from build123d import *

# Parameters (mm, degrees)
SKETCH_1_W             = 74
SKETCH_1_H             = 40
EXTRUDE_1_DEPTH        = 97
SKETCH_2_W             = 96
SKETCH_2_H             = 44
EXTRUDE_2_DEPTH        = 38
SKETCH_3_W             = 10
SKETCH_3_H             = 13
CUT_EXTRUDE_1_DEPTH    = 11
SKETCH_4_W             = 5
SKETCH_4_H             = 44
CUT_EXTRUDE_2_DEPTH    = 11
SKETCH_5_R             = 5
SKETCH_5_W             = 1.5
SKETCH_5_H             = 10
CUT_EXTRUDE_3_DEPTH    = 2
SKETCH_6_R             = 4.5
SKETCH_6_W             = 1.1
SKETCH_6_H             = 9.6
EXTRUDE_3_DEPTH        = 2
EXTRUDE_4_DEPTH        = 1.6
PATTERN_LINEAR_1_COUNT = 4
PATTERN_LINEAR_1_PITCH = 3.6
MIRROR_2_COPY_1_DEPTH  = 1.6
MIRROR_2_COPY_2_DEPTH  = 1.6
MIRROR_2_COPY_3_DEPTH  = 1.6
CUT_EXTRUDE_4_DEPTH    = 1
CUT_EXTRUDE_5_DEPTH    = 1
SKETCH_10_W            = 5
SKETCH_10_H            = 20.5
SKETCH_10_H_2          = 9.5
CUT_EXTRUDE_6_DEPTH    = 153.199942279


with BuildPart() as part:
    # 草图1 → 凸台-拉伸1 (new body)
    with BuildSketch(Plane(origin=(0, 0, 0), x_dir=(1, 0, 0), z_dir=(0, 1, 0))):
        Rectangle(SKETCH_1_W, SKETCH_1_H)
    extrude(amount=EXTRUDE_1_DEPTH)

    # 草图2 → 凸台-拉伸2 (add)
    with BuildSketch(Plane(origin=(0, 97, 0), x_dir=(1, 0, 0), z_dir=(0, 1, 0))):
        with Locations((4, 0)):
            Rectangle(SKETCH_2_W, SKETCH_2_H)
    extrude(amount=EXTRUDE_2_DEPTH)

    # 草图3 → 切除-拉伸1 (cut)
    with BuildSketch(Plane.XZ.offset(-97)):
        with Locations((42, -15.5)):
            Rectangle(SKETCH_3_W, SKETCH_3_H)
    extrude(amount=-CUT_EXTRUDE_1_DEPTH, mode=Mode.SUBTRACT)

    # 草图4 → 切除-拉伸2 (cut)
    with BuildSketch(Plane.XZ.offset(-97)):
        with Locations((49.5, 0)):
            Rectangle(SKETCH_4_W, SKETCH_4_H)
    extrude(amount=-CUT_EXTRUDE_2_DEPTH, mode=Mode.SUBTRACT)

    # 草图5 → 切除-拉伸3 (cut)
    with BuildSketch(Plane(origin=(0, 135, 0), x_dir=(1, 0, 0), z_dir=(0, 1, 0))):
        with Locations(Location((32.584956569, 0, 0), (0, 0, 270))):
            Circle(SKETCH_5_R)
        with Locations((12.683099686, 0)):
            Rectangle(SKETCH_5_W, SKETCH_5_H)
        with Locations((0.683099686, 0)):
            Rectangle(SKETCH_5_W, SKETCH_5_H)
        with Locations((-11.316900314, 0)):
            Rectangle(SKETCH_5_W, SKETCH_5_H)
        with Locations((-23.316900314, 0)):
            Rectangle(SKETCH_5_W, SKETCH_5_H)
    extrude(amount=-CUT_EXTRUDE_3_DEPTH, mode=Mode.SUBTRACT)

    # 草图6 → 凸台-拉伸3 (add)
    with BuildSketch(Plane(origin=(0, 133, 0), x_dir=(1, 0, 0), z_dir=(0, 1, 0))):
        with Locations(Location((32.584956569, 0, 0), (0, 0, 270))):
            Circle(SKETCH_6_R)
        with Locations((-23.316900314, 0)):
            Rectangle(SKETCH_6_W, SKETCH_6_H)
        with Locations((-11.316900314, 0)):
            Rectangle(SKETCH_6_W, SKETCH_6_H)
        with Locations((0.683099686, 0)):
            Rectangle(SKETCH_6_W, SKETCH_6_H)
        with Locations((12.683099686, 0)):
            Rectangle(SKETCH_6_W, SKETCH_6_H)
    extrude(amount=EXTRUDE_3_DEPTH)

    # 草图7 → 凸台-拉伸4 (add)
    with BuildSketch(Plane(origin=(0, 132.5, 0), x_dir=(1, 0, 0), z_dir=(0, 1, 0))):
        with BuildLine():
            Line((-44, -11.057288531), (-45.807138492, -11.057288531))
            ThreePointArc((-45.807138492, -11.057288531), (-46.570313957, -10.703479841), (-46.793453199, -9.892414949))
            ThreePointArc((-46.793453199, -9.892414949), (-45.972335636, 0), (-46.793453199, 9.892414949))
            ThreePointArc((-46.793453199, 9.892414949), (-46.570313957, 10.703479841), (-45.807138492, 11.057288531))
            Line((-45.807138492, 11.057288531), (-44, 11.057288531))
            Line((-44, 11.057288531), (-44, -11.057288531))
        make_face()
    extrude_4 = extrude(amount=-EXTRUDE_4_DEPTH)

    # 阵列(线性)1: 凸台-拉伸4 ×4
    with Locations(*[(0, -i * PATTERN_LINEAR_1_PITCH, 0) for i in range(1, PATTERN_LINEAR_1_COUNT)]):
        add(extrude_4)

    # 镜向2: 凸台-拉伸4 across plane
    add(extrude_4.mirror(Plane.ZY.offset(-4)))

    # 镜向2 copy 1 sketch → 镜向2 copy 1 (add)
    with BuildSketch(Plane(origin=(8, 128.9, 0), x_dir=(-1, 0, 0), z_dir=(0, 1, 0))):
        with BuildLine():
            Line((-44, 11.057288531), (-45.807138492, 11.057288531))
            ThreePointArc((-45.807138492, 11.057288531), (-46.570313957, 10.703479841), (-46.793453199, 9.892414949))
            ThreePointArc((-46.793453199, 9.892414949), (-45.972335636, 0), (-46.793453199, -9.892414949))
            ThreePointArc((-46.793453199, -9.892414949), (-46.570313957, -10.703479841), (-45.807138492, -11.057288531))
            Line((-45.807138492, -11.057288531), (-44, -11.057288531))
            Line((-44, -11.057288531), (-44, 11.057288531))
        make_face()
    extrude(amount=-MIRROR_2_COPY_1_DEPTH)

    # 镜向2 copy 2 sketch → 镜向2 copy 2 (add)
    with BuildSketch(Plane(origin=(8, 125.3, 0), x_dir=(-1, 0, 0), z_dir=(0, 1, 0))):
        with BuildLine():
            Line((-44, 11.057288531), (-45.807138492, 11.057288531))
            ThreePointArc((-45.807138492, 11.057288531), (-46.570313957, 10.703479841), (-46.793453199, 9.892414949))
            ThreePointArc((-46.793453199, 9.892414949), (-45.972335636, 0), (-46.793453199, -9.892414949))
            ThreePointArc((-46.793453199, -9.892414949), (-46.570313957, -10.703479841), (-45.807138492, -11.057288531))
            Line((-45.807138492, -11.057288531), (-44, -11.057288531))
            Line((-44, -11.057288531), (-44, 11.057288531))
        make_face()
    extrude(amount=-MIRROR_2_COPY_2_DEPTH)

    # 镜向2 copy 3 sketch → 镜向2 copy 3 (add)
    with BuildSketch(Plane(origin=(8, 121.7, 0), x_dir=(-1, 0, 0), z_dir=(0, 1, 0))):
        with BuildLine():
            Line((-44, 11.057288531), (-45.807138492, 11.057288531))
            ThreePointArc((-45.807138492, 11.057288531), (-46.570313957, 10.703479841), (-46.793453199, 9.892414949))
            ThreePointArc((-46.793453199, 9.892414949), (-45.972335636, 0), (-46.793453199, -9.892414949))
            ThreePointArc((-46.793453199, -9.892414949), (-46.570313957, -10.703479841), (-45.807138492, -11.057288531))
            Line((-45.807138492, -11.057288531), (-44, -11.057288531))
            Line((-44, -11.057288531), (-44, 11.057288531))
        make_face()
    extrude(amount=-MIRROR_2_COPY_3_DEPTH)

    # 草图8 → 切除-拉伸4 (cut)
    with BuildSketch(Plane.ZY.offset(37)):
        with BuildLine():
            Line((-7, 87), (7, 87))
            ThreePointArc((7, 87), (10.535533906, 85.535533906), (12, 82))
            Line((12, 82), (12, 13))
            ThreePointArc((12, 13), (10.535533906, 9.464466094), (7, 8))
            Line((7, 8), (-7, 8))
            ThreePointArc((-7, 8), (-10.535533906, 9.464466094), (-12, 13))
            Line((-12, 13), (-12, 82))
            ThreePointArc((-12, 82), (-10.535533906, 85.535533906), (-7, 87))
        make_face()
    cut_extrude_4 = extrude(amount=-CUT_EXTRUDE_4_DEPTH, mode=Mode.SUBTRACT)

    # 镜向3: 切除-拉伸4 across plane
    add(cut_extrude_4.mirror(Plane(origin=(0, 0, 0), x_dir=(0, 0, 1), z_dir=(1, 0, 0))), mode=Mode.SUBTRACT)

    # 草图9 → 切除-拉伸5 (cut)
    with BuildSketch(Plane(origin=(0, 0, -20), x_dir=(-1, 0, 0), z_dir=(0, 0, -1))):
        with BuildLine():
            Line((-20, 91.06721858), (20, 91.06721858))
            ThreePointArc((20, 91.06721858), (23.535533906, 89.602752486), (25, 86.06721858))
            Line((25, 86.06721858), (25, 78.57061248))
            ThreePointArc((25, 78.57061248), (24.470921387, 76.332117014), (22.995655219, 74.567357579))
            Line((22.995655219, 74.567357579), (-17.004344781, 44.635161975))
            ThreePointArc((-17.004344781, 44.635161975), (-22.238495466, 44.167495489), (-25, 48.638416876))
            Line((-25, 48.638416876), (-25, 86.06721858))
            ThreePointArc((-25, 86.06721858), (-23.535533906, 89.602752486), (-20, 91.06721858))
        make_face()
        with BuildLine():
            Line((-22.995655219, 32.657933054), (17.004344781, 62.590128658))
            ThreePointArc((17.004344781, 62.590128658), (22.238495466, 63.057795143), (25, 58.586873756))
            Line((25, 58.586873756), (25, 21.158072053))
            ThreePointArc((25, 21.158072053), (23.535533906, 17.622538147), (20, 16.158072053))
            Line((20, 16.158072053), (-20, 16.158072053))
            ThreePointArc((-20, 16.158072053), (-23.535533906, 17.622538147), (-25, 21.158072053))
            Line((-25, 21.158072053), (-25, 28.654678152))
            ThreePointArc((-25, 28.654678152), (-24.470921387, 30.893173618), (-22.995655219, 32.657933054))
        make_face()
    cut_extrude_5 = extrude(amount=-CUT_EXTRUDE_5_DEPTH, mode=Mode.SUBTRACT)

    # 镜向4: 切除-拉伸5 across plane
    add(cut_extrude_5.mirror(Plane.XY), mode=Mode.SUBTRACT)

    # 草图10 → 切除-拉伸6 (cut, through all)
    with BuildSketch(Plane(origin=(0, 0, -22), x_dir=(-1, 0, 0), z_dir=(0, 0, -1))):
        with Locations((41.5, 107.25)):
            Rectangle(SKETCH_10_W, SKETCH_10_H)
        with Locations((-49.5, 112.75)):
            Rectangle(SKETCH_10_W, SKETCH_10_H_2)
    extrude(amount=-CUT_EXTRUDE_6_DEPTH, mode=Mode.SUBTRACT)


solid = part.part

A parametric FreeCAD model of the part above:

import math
import FreeCAD as App
import Part
import Sketcher

V = App.Vector
Q = App.Units.Quantity


def add_polygon(sketch, points):
    """Adds a closed chain of lines whose ends are joined by coincident constraints."""
    first, n = sketch.GeometryCount, len(points)
    for a, b in zip(points, points[1:] + points[:1]):
        sketch.addGeometry(Part.LineSegment(App.Vector(*a, 0), App.Vector(*b, 0)), False)
    for i in range(n):
        sketch.addConstraint(Sketcher.Constraint("Coincident", first + i, 2, first + (i + 1) % n, 1))

doc = App.newDocument("Part")
params = doc.addObject("Spreadsheet::Sheet", "Params")
for row, (alias, value) in enumerate([
    ("sketch1_width", "74 mm"),
    ("sketch1_height", "40 mm"),
    ("pad1_length", "97 mm"),
    ("sketch2_width", "96 mm"),
    ("sketch2_height", "44 mm"),
    ("pad2_length", "38 mm"),
    ("sketch3_width", "10 mm"),
    ("sketch3_height", "13 mm"),
    ("pocket1_length", "11 mm"),
    ("sketch4_width", "5 mm"),
    ("sketch4_height", "44 mm"),
    ("pocket2_length", "11 mm"),
    ("sketch5_diameter", "10 mm"),
    ("sketch5_height", "10 mm"),
    ("sketch5_width", "1.5 mm"),
    ("pocket3_length", "2 mm"),
    ("sketch6_diameter", "9 mm"),
    ("sketch6_width", "1.1 mm"),
    ("sketch6_height", "9.6 mm"),
    ("pad3_length", "2 mm"),
    ("sketch7_radius", "1 mm"),
    ("sketch7_radius2", "60 mm"),
    ("pad4_length", "1.6 mm"),
    ("linearpattern_pitch", "3.6 mm"),
    ("sketch8_radius", "1 mm"),
    ("sketch8_radius2", "60 mm"),
    ("pad5_length", "1.6 mm"),
    ("sketch9_radius", "1 mm"),
    ("sketch9_radius2", "60 mm"),
    ("pad6_length", "1.6 mm"),
    ("sketch10_radius", "1 mm"),
    ("sketch10_radius2", "60 mm"),
    ("pad7_length", "1.6 mm"),
    ("sketch11_radius", "5 mm"),
    ("sketch11_width", "69 mm"),
    ("sketch11_height", "14 mm"),
    ("pocket4_length", "1 mm"),
    ("sketch12_radius", "5 mm"),
    ("sketch12_width", "40 mm"),
    ("pocket5_length", "1 mm"),
    ("sketch13_width", "5 mm"),
    ("sketch13_height", "20.5 mm"),
    ("sketch13_height2", "9.5 mm"),
], start=1):
    params.set(f"A{row}", alias)
    params.set(f"B{row}", "=" + value)
    params.setAlias(f"B{row}", alias)

body = doc.addObject("PartDesign::Body", "Body")

# Sketch on XZ plane
sketch1 = doc.addObject("Sketcher::SketchObject", "Sketch")
body.addObject(sketch1)
sketch1.AttachmentSupport = (doc.XZ_Plane, [""])
sketch1.MapMode = "FlatFace"
add_polygon(sketch1, [(-37, -20), (-37, 20), (37, 20), (37, -20)])  # lines 0-3
sketch1.addConstraint([
    Sketcher.Constraint("Vertical", 0),
    Sketcher.Constraint("Horizontal", 1),
    Sketcher.Constraint("Vertical", 2),
    Sketcher.Constraint("Horizontal", 3),
    Sketcher.Constraint("Symmetric", 0, 2, 2, 2, -1, 1),
    Sketcher.Constraint("DistanceX", 1, 1, 1, 2, Q("74 mm")),
    Sketcher.Constraint("DistanceY", 0, 1, 0, 2, Q("40 mm")),
])
sketch1.setExpression("Constraints[9]", "Params.sketch1_width")
sketch1.setExpression("Constraints[10]", "Params.sketch1_height")
pad1 = doc.addObject("PartDesign::Pad", "Pad")
body.addObject(pad1)
pad1.Profile = sketch1
pad1.setExpression("Length", "Params.pad1_length")
pad1.Reversed = True

# Sketch on XZ plane
sketch2 = doc.addObject("Sketcher::SketchObject", "Sketch001")
body.addObject(sketch2)
sketch2.AttachmentSupport = (doc.XZ_Plane, [""])
sketch2.MapMode = "FlatFace"
sketch2.AttachmentOffset = App.Placement(V(0, 0, -97), App.Rotation())
add_polygon(sketch2, [(-44, -22), (-44, 22), (52, 22), (52, -22)])  # lines 0-3
sketch2.addConstraint([
    Sketcher.Constraint("Vertical", 0),
    Sketcher.Constraint("Horizontal", 1),
    Sketcher.Constraint("Vertical", 2),
    Sketcher.Constraint("Horizontal", 3),
    Sketcher.Constraint("DistanceX", 1, 1, 1, 2, Q("96 mm")),
    Sketcher.Constraint("DistanceY", 0, 1, 0, 2, Q("44 mm")),
    Sketcher.Constraint("DistanceX", 0, 2, -1, 1, Q("44 mm")),
    Sketcher.Constraint("DistanceY", -1, 1, 0, 2, Q("22 mm")),
])
sketch2.setExpression("Constraints[8]", "Params.sketch2_width")
sketch2.setExpression("Constraints[9]", "Params.sketch2_height")
pad2 = doc.addObject("PartDesign::Pad", "Pad001")
body.addObject(pad2)
pad2.Profile = sketch2
pad2.setExpression("Length", "Params.pad2_length")
pad2.Reversed = True

# Sketch on XZ plane
sketch3 = doc.addObject("Sketcher::SketchObject", "Sketch002")
body.addObject(sketch3)
sketch3.AttachmentSupport = (doc.XZ_Plane, [""])
sketch3.MapMode = "FlatFace"
sketch3.AttachmentOffset = App.Placement(V(0, 0, -97), App.Rotation())
add_polygon(sketch3, [(37, -9), (37, -22), (47, -22), (47, -9)])  # lines 0-3
sketch3.addConstraint([
    Sketcher.Constraint("Vertical", 0),
    Sketcher.Constraint("Horizontal", 1),
    Sketcher.Constraint("Vertical", 2),
    Sketcher.Constraint("Horizontal", 3),
    Sketcher.Constraint("DistanceX", 1, 1, 1, 2, Q("10 mm")),
    Sketcher.Constraint("DistanceY", 0, 2, 0, 1, Q("13 mm")),
    Sketcher.Constraint("DistanceX", -1, 1, 0, 2, Q("37 mm")),
    Sketcher.Constraint("DistanceY", 0, 2, -1, 1, Q("22 mm")),
])
sketch3.setExpression("Constraints[8]", "Params.sketch3_width")
sketch3.setExpression("Constraints[9]", "Params.sketch3_height")
pocket1 = doc.addObject("PartDesign::Pocket", "Pocket")
body.addObject(pocket1)
pocket1.Profile = sketch3
pocket1.setExpression("Length", "Params.pocket1_length")

# Sketch on XZ plane
sketch4 = doc.addObject("Sketcher::SketchObject", "Sketch003")
body.addObject(sketch4)
sketch4.AttachmentSupport = (doc.XZ_Plane, [""])
sketch4.MapMode = "FlatFace"
sketch4.AttachmentOffset = App.Placement(V(0, 0, -97), App.Rotation())
add_polygon(sketch4, [(47, 22), (47, -22), (52, -22), (52, 22)])  # lines 0-3
sketch4.addConstraint([
    Sketcher.Constraint("Vertical", 0),
    Sketcher.Constraint("Horizontal", 1),
    Sketcher.Constraint("Vertical", 2),
    Sketcher.Constraint("Horizontal", 3),
    Sketcher.Constraint("DistanceX", 1, 1, 1, 2, Q("5 mm")),
    Sketcher.Constraint("DistanceY", 0, 2, 0, 1, Q("44 mm")),
    Sketcher.Constraint("DistanceX", -1, 1, 0, 2, Q("47 mm")),
    Sketcher.Constraint("DistanceY", 0, 2, -1, 1, Q("22 mm")),
])
sketch4.setExpression("Constraints[8]", "Params.sketch4_width")
sketch4.setExpression("Constraints[9]", "Params.sketch4_height")
pocket2 = doc.addObject("PartDesign::Pocket", "Pocket001")
body.addObject(pocket2)
pocket2.Profile = sketch4
pocket2.setExpression("Length", "Params.pocket2_length")

# Sketch on XZ plane
sketch5 = doc.addObject("Sketcher::SketchObject", "Sketch004")
body.addObject(sketch5)
sketch5.AttachmentSupport = (doc.XZ_Plane, [""])
sketch5.MapMode = "FlatFace"
sketch5.AttachmentOffset = App.Placement(V(0, 0, -135), App.Rotation())
sketch5.addGeometry(Part.Circle(V(32.6, 0, 0), V(0, 0, 1), 5), False)  # 0
add_polygon(sketch5, [(11.9, -5), (11.9, 5), (13.4, 5), (13.4, -5)])  # lines 1-4
add_polygon(sketch5, [(-0.1, -5), (-0.1, 5), (1.4, 5), (1.4, -5)])  # lines 5-8
add_polygon(sketch5, [(-12.1, -5), (-12.1, 5), (-10.6, 5), (-10.6, -5)])  # lines 9-12
add_polygon(sketch5, [(-24.1, -5), (-24.1, 5), (-22.6, 5), (-22.6, -5)])  # lines 13-16
sketch5.addConstraint([
    Sketcher.Constraint("Vertical", 1),
    Sketcher.Constraint("Horizontal", 2),
    Sketcher.Constraint("Vertical", 3),
    Sketcher.Constraint("Horizontal", 4),
    Sketcher.Constraint("Vertical", 5),
    Sketcher.Constraint("Horizontal", 6),
    Sketcher.Constraint("Vertical", 7),
    Sketcher.Constraint("Horizontal", 8),
    Sketcher.Constraint("Vertical", 9),
    Sketcher.Constraint("Horizontal", 10),
    Sketcher.Constraint("Vertical", 11),
    Sketcher.Constraint("Horizontal", 12),
    Sketcher.Constraint("Vertical", 13),
    Sketcher.Constraint("Horizontal", 14),
    Sketcher.Constraint("Vertical", 15),
    Sketcher.Constraint("Horizontal", 16),
    Sketcher.Constraint("PointOnObject", 0, 3, -1),
    Sketcher.Constraint("Horizontal", 2, 2, 5, 2),
    Sketcher.Constraint("Horizontal", 4, 2, 7, 2),
    Sketcher.Constraint("Horizontal", 6, 2, 9, 2),
    Sketcher.Constraint("Horizontal", 8, 2, 11, 2),
    Sketcher.Constraint("Horizontal", 10, 2, 13, 2),
    Sketcher.Constraint("Horizontal", 12, 2, 15, 2),
    Sketcher.Constraint("Equal", 4, 6),
    Sketcher.Constraint("Equal", 8, 10),
    Sketcher.Constraint("Equal", 12, 14),
    Sketcher.Constraint("Diameter", 0, Q("10 mm")),
    Sketcher.Constraint("DistanceY", 1, 1, 1, 2, Q("10 mm")),
    Sketcher.Constraint("DistanceX", 2, 1, 2, 2, Q("1.5 mm")),
    Sketcher.Constraint("DistanceY", -1, 1, 1, 2, Q("5 mm")),
    Sketcher.Constraint("DistanceX", 5, 2, 1, 2, Q("12 mm")),
    Sketcher.Constraint("DistanceX", 9, 2, 5, 2, Q("12 mm")),
    Sketcher.Constraint("DistanceX", 13, 2, 9, 2, Q("12 mm")),
    Sketcher.Constraint("DistanceX", -1, 1, 1, 2, Q("11.9331 mm")),
    Sketcher.Constraint("DistanceX", -1, 1, 0, 3, Q("32.584957 mm")),
])
sketch5.setExpression("Constraints[42]", "Params.sketch5_diameter")
sketch5.setExpression("Constraints[43]", "Params.sketch5_height")
sketch5.setExpression("Constraints[44]", "Params.sketch5_width")
pocket3 = doc.addObject("PartDesign::Pocket", "Pocket002")
body.addObject(pocket3)
pocket3.Profile = sketch5
pocket3.setExpression("Length", "Params.pocket3_length")
pocket3.Reversed = True

# Sketch on XZ plane
sketch6 = doc.addObject("Sketcher::SketchObject", "Sketch005")
body.addObject(sketch6)
sketch6.AttachmentSupport = (doc.XZ_Plane, [""])
sketch6.MapMode = "FlatFace"
sketch6.AttachmentOffset = App.Placement(V(0, 0, -133), App.Rotation())
sketch6.addGeometry(Part.Circle(V(32.6, 0, 0), V(0, 0, 1), 4.5), False)  # 0
add_polygon(sketch6, [(-23.9, -4.8), (-23.9, 4.8), (-22.8, 4.8), (-22.8, -4.8)])  # lines 1-4
add_polygon(sketch6, [(-11.9, -4.8), (-11.9, 4.8), (-10.8, 4.8), (-10.8, -4.8)])  # lines 5-8
add_polygon(sketch6, [(0.1, -4.8), (0.1, 4.8), (1.2, 4.8), (1.2, -4.8)])  # lines 9-12
add_polygon(sketch6, [(12.1, -4.8), (12.1, 4.8), (13.2, 4.8), (13.2, -4.8)])  # lines 13-16
sketch6.addConstraint([
    Sketcher.Constraint("Vertical", 1),
    Sketcher.Constraint("Horizontal", 2),
    Sketcher.Constraint("Vertical", 3),
    Sketcher.Constraint("Horizontal", 4),
    Sketcher.Constraint("Vertical", 5),
    Sketcher.Constraint("Horizontal", 6),
    Sketcher.Constraint("Vertical", 7),
    Sketcher.Constraint("Horizontal", 8),
    Sketcher.Constraint("Vertical", 9),
    Sketcher.Constraint("Horizontal", 10),
    Sketcher.Constraint("Vertical", 11),
    Sketcher.Constraint("Horizontal", 12),
    Sketcher.Constraint("Vertical", 13),
    Sketcher.Constraint("Horizontal", 14),
    Sketcher.Constraint("Vertical", 15),
    Sketcher.Constraint("Horizontal", 16),
    Sketcher.Constraint("PointOnObject", 0, 3, -1),
    Sketcher.Constraint("Horizontal", 2, 2, 5, 2),
    Sketcher.Constraint("Horizontal", 4, 2, 7, 2),
    Sketcher.Constraint("Horizontal", 6, 2, 9, 2),
    Sketcher.Constraint("Horizontal", 8, 2, 11, 2),
    Sketcher.Constraint("Horizontal", 10, 2, 13, 2),
    Sketcher.Constraint("Horizontal", 12, 2, 15, 2),
    Sketcher.Constraint("Equal", 4, 6),
    Sketcher.Constraint("Equal", 8, 10),
    Sketcher.Constraint("Equal", 12, 14),
    Sketcher.Constraint("Diameter", 0, Q("9 mm")),
    Sketcher.Constraint("DistanceX", 2, 1, 2, 2, Q("1.1 mm")),
    Sketcher.Constraint("DistanceY", 1, 1, 1, 2, Q("9.6 mm")),
    Sketcher.Constraint("DistanceX", 1, 2, 5, 2, Q("12 mm")),
    Sketcher.Constraint("DistanceX", 5, 2, 9, 2, Q("12 mm")),
    Sketcher.Constraint("DistanceX", 9, 2, 13, 2, Q("12 mm")),
    Sketcher.Constraint("DistanceY", -1, 1, 1, 2, Q("4.8 mm")),
    Sketcher.Constraint("DistanceX", 1, 2, -1, 1, Q("23.8669 mm")),
    Sketcher.Constraint("DistanceX", -1, 1, 0, 3, Q("32.584957 mm")),
])
sketch6.setExpression("Constraints[42]", "Params.sketch6_diameter")
sketch6.setExpression("Constraints[43]", "Params.sketch6_width")
sketch6.setExpression("Constraints[44]", "Params.sketch6_height")
pad3 = doc.addObject("PartDesign::Pad", "Pad002")
body.addObject(pad3)
pad3.Profile = sketch6
pad3.setExpression("Length", "Params.pad3_length")
pad3.Reversed = True

# Sketch on XZ plane
sketch7 = doc.addObject("Sketcher::SketchObject", "Sketch006")
body.addObject(sketch7)
sketch7.AttachmentSupport = (doc.XZ_Plane, [""])
sketch7.MapMode = "FlatFace"
sketch7.AttachmentOffset = App.Placement(V(0, 0, -132.5), App.Rotation())
sketch7.addGeometry([
    Part.LineSegment(V(-45.8, 11.1, 0), V(-44, 11.1, 0)),  # 0
    Part.LineSegment(V(-44, 11.1, 0), V(-44, -11.1, 0)),  # 1
    Part.LineSegment(V(-44, -11.1, 0), V(-45.8, -11.1, 0)),  # 2
    Part.ArcOfCircle(Part.Circle(V(-45.8, -10.1, 0), V(0, 0, 1), 1), math.radians(171), math.radians(270)),  # 3
    Part.ArcOfCircle(Part.Circle(V(-106, 0, 0), V(0, 0, 1), 60), math.radians(-9.49), math.radians(9.49)),  # 4
    Part.ArcOfCircle(Part.Circle(V(-45.8, 10.1, 0), V(0, 0, 1), 1), math.radians(90), math.radians(189)),  # 5
], False)
sketch7.addConstraint([
    Sketcher.Constraint("Coincident", 0, 2, 1, 1),
    Sketcher.Constraint("Coincident", 1, 2, 2, 1),
    Sketcher.Constraint("Tangent", 2, 2, 3, 2),
    Sketcher.Constraint("Tangent", 3, 1, 4, 1),
    Sketcher.Constraint("Tangent", 4, 2, 5, 2),
    Sketcher.Constraint("Tangent", 5, 1, 0, 1),
    Sketcher.Constraint("Horizontal", 0),
    Sketcher.Constraint("Vertical", 1),
    Sketcher.Constraint("Horizontal", 2),
    Sketcher.Constraint("Equal", 3, 5),
    Sketcher.Constraint("Symmetric", 3, 3, 5, 3, -1),
    Sketcher.Constraint("Radius", 3, Q("1 mm")),
    Sketcher.Constraint("Radius", 4, Q("60 mm")),
    Sketcher.Constraint("DistanceX", 0, 2, -1, 1, Q("44 mm")),
    Sketcher.Constraint("DistanceX", 0, 1, 0, 2, Q("1.807138 mm")),
    Sketcher.Constraint("DistanceY", 1, 2, 1, 1, Q("22.114577 mm")),
])
sketch7.setExpression("Constraints[11]", "Params.sketch7_radius")
sketch7.setExpression("Constraints[12]", "Params.sketch7_radius2")
pad4 = doc.addObject("PartDesign::Pad", "Pad003")
body.addObject(pad4)
pad4.Profile = sketch7
pad4.setExpression("Length", "Params.pad4_length")
doc.recompute()

linearpattern = doc.addObject("PartDesign::LinearPattern", "LinearPattern")
body.addObject(linearpattern)
linearpattern.Originals = [pad4]
linearpattern.Direction = (doc.Y_Axis, [""])
linearpattern.Mode = "offset"
linearpattern.setExpression("Offset", "Params.linearpattern_pitch")
linearpattern.Occurrences = 4
linearpattern.Reversed = True
body.Tip = linearpattern
doc.recompute()

datumplane = doc.addObject("PartDesign::Plane", "DatumPlane")
body.addObject(datumplane)
datumplane.AttachmentSupport = (doc.YZ_Plane, [""])
datumplane.MapMode = "FlatFace"
datumplane.AttachmentOffset = App.Placement(V(0, 0, 4), App.Rotation())
mirrored = doc.addObject("PartDesign::Mirrored", "Mirrored")
body.addObject(mirrored)
mirrored.Originals = [pad4]
mirrored.MirrorPlane = (datumplane, [""])
body.Tip = mirrored

# Sketch on XZ plane
sketch8 = doc.addObject("Sketcher::SketchObject", "Sketch007")
body.addObject(sketch8)
sketch8.AttachmentSupport = (doc.XZ_Plane, [""])
sketch8.MapMode = "FlatFace"
sketch8.AttachmentOffset = App.Placement(V(0, 0, -128.9), App.Rotation())
sketch8.addGeometry([
    Part.LineSegment(V(52, 11.1, 0), V(53.8, 11.1, 0)),  # 0
    Part.ArcOfCircle(Part.Circle(V(53.8, 10.1, 0), V(0, 0, 1), 1), math.radians(-9), math.radians(90)),  # 1
    Part.ArcOfCircle(Part.Circle(V(114, 0, 0), V(0, 0, 1), 60), math.radians(170.51), math.radians(189.49)),  # 2
    Part.ArcOfCircle(Part.Circle(V(53.8, -10.1, 0), V(0, 0, 1), 1), math.radians(-90), math.radians(9)),  # 3
    Part.LineSegment(V(53.8, -11.1, 0), V(52, -11.1, 0)),  # 4
    Part.LineSegment(V(52, -11.1, 0), V(52, 11.1, 0)),  # 5
], False)
sketch8.addConstraint([
    Sketcher.Constraint("Tangent", 0, 2, 1, 2),
    Sketcher.Constraint("Tangent", 1, 1, 2, 1),
    Sketcher.Constraint("Tangent", 2, 2, 3, 2),
    Sketcher.Constraint("Tangent", 3, 1, 4, 1),
    Sketcher.Constraint("Coincident", 4, 2, 5, 1),
    Sketcher.Constraint("Coincident", 5, 2, 0, 1),
    Sketcher.Constraint("Horizontal", 0),
    Sketcher.Constraint("Horizontal", 4),
    Sketcher.Constraint("Vertical", 5),
    Sketcher.Constraint("Equal", 1, 3),
    Sketcher.Constraint("Symmetric", 1, 3, 3, 3, -1),
    Sketcher.Constraint("Radius", 1, Q("1 mm")),
    Sketcher.Constraint("Radius", 2, Q("60 mm")),
    Sketcher.Constraint("DistanceX", -1, 1, 4, 2, Q("52 mm")),
    Sketcher.Constraint("DistanceX", 0, 1, 0, 2, Q("1.807138 mm")),
    Sketcher.Constraint("DistanceY", 5, 1, 5, 2, Q("22.114577 mm")),
])
sketch8.setExpression("Constraints[11]", "Params.sketch8_radius")
sketch8.setExpression("Constraints[12]", "Params.sketch8_radius2")
pad5 = doc.addObject("PartDesign::Pad", "Pad004")
body.addObject(pad5)
pad5.Profile = sketch8
pad5.setExpression("Length", "Params.pad5_length")

# Sketch on XZ plane
sketch9 = doc.addObject("Sketcher::SketchObject", "Sketch008")
body.addObject(sketch9)
sketch9.AttachmentSupport = (doc.XZ_Plane, [""])
sketch9.MapMode = "FlatFace"
sketch9.AttachmentOffset = App.Placement(V(0, 0, -125.3), App.Rotation())
sketch9.addGeometry([
    Part.LineSegment(V(52, 11.1, 0), V(53.8, 11.1, 0)),  # 0
    Part.ArcOfCircle(Part.Circle(V(53.8, 10.1, 0), V(0, 0, 1), 1), math.radians(-9), math.radians(90)),  # 1
    Part.ArcOfCircle(Part.Circle(V(114, 0, 0), V(0, 0, 1), 60), math.radians(170.51), math.radians(189.49)),  # 2
    Part.ArcOfCircle(Part.Circle(V(53.8, -10.1, 0), V(0, 0, 1), 1), math.radians(-90), math.radians(9)),  # 3
    Part.LineSegment(V(53.8, -11.1, 0), V(52, -11.1, 0)),  # 4
    Part.LineSegment(V(52, -11.1, 0), V(52, 11.1, 0)),  # 5
], False)
sketch9.addConstraint([
    Sketcher.Constraint("Tangent", 0, 2, 1, 2),
    Sketcher.Constraint("Tangent", 1, 1, 2, 1),
    Sketcher.Constraint("Tangent", 2, 2, 3, 2),
    Sketcher.Constraint("Tangent", 3, 1, 4, 1),
    Sketcher.Constraint("Coincident", 4, 2, 5, 1),
    Sketcher.Constraint("Coincident", 5, 2, 0, 1),
    Sketcher.Constraint("Horizontal", 0),
    Sketcher.Constraint("Horizontal", 4),
    Sketcher.Constraint("Vertical", 5),
    Sketcher.Constraint("Equal", 1, 3),
    Sketcher.Constraint("Symmetric", 1, 3, 3, 3, -1),
    Sketcher.Constraint("Radius", 1, Q("1 mm")),
    Sketcher.Constraint("Radius", 2, Q("60 mm")),
    Sketcher.Constraint("DistanceX", -1, 1, 4, 2, Q("52 mm")),
    Sketcher.Constraint("DistanceX", 0, 1, 0, 2, Q("1.807138 mm")),
    Sketcher.Constraint("DistanceY", 5, 1, 5, 2, Q("22.114577 mm")),
])
sketch9.setExpression("Constraints[11]", "Params.sketch9_radius")
sketch9.setExpression("Constraints[12]", "Params.sketch9_radius2")
pad6 = doc.addObject("PartDesign::Pad", "Pad005")
body.addObject(pad6)
pad6.Profile = sketch9
pad6.setExpression("Length", "Params.pad6_length")

# Sketch on XZ plane
sketch10 = doc.addObject("Sketcher::SketchObject", "Sketch009")
body.addObject(sketch10)
sketch10.AttachmentSupport = (doc.XZ_Plane, [""])
sketch10.MapMode = "FlatFace"
sketch10.AttachmentOffset = App.Placement(V(0, 0, -121.7), App.Rotation())
sketch10.addGeometry([
    Part.LineSegment(V(52, 11.1, 0), V(53.8, 11.1, 0)),  # 0
    Part.ArcOfCircle(Part.Circle(V(53.8, 10.1, 0), V(0, 0, 1), 1), math.radians(-9), math.radians(90)),  # 1
    Part.ArcOfCircle(Part.Circle(V(114, 0, 0), V(0, 0, 1), 60), math.radians(170.51), math.radians(189.49)),  # 2
    Part.ArcOfCircle(Part.Circle(V(53.8, -10.1, 0), V(0, 0, 1), 1), math.radians(-90), math.radians(9)),  # 3
    Part.LineSegment(V(53.8, -11.1, 0), V(52, -11.1, 0)),  # 4
    Part.LineSegment(V(52, -11.1, 0), V(52, 11.1, 0)),  # 5
], False)
sketch10.addConstraint([
    Sketcher.Constraint("Tangent", 0, 2, 1, 2),
    Sketcher.Constraint("Tangent", 1, 1, 2, 1),
    Sketcher.Constraint("Tangent", 2, 2, 3, 2),
    Sketcher.Constraint("Tangent", 3, 1, 4, 1),
    Sketcher.Constraint("Coincident", 4, 2, 5, 1),
    Sketcher.Constraint("Coincident", 5, 2, 0, 1),
    Sketcher.Constraint("Horizontal", 0),
    Sketcher.Constraint("Horizontal", 4),
    Sketcher.Constraint("Vertical", 5),
    Sketcher.Constraint("Equal", 1, 3),
    Sketcher.Constraint("Symmetric", 1, 3, 3, 3, -1),
    Sketcher.Constraint("Radius", 1, Q("1 mm")),
    Sketcher.Constraint("Radius", 2, Q("60 mm")),
    Sketcher.Constraint("DistanceX", -1, 1, 4, 2, Q("52 mm")),
    Sketcher.Constraint("DistanceX", 0, 1, 0, 2, Q("1.807138 mm")),
    Sketcher.Constraint("DistanceY", 5, 1, 5, 2, Q("22.114577 mm")),
])
sketch10.setExpression("Constraints[11]", "Params.sketch10_radius")
sketch10.setExpression("Constraints[12]", "Params.sketch10_radius2")
pad7 = doc.addObject("PartDesign::Pad", "Pad006")
body.addObject(pad7)
pad7.Profile = sketch10
pad7.setExpression("Length", "Params.pad7_length")

# Sketch on YZ plane
sketch11 = doc.addObject("Sketcher::SketchObject", "Sketch010")
body.addObject(sketch11)
sketch11.AttachmentSupport = (doc.YZ_Plane, [""])
sketch11.MapMode = "FlatFace"
sketch11.AttachmentOffset = App.Placement(V(0, 0, -37), App.Rotation())
sketch11.addGeometry([
    Part.LineSegment(V(87, 7, 0), V(87, -7, 0)),  # 0
    Part.ArcOfCircle(Part.Circle(V(82, -7, 0), V(0, 0, 1), 5), math.radians(-90), math.radians(0)),  # 1
    Part.LineSegment(V(82, -12, 0), V(13, -12, 0)),  # 2
    Part.ArcOfCircle(Part.Circle(V(13, -7, 0), V(0, 0, 1), 5), math.radians(180), math.radians(270)),  # 3
    Part.LineSegment(V(8, -7, 0), V(8, 7, 0)),  # 4
    Part.ArcOfCircle(Part.Circle(V(13, 7, 0), V(0, 0, 1), 5), math.radians(90), math.radians(180)),  # 5
    Part.LineSegment(V(13, 12, 0), V(82, 12, 0)),  # 6
    Part.ArcOfCircle(Part.Circle(V(82, 7, 0), V(0, 0, 1), 5), math.radians(0), math.radians(90)),  # 7
], False)
sketch11.addConstraint([
    Sketcher.Constraint("Tangent", 0, 2, 1, 2),
    Sketcher.Constraint("Tangent", 1, 1, 2, 1),
    Sketcher.Constraint("Tangent", 2, 2, 3, 2),
    Sketcher.Constraint("Tangent", 3, 1, 4, 1),
    Sketcher.Constraint("Tangent", 4, 2, 5, 2),
    Sketcher.Constraint("Tangent", 5, 1, 6, 1),
    Sketcher.Constraint("Tangent", 6, 2, 7, 2),
    Sketcher.Constraint("Tangent", 7, 1, 0, 1),
    Sketcher.Constraint("Vertical", 0),
    Sketcher.Constraint("Horizontal", 2),
    Sketcher.Constraint("Vertical", 4),
    Sketcher.Constraint("Horizontal", 6),
    Sketcher.Constraint("Equal", 1, 3),
    Sketcher.Constraint("Equal", 3, 5),
    Sketcher.Constraint("Equal", 5, 7),
    Sketcher.Constraint("Radius", 1, Q("5 mm")),
    Sketcher.Constraint("DistanceX", 2, 2, 2, 1, Q("69 mm")),
    Sketcher.Constraint("DistanceY", 0, 2, 0, 1, Q("14 mm")),
    Sketcher.Constraint("DistanceX", -1, 1, 1, 3, Q("82 mm")),
    Sketcher.Constraint("DistanceY", 1, 3, -1, 1, Q("7 mm")),
])
sketch11.setExpression("Constraints[15]", "Params.sketch11_radius")
sketch11.setExpression("Constraints[16]", "Params.sketch11_width")
sketch11.setExpression("Constraints[17]", "Params.sketch11_height")
pocket4 = doc.addObject("PartDesign::Pocket", "Pocket003")
body.addObject(pocket4)
pocket4.Profile = sketch11
pocket4.setExpression("Length", "Params.pocket4_length")
pocket4.Reversed = True
doc.recompute()

mirrored2 = doc.addObject("PartDesign::Mirrored", "Mirrored001")
body.addObject(mirrored2)
mirrored2.Originals = [pocket4]
mirrored2.MirrorPlane = (doc.YZ_Plane, [""])
body.Tip = mirrored2

# Sketch on XY plane
sketch12 = doc.addObject("Sketcher::SketchObject", "Sketch011")
body.addObject(sketch12)
sketch12.AttachmentSupport = (doc.XY_Plane, [""])
sketch12.MapMode = "FlatFace"
sketch12.AttachmentOffset = App.Placement(V(0, 0, -20), App.Rotation())
sketch12.addGeometry([
    Part.LineSegment(V(-20, 91.1, 0), V(20, 91.1, 0)),  # 0
    Part.ArcOfCircle(Part.Circle(V(20, 86.1, 0), V(0, 0, 1), 5), math.radians(0), math.radians(90)),  # 1
    Part.LineSegment(V(25, 86.1, 0), V(25, 48.6, 0)),  # 2
    Part.ArcOfCircle(Part.Circle(V(20, 48.6, 0), V(0, 0, 1), 5), math.radians(-127), math.radians(0)),  # 3
    Part.LineSegment(V(17, 44.6, 0), V(-23, 74.6, 0)),  # 4
    Part.ArcOfCircle(Part.Circle(V(-20, 78.6, 0), V(0, 0, 1), 5), math.radians(180), math.radians(233)),  # 5
    Part.LineSegment(V(-25, 78.6, 0), V(-25, 86.1, 0)),  # 6
    Part.ArcOfCircle(Part.Circle(V(-20, 86.1, 0), V(0, 0, 1), 5), math.radians(90), math.radians(180)),  # 7
    Part.LineSegment(V(-17, 62.6, 0), V(23, 32.7, 0)),  # 8
    Part.ArcOfCircle(Part.Circle(V(20, 28.7, 0), V(0, 0, 1), 5), math.radians(0), math.radians(53)),  # 9
    Part.LineSegment(V(25, 28.7, 0), V(25, 21.2, 0)),  # 10
    Part.ArcOfCircle(Part.Circle(V(20, 21.2, 0), V(0, 0, 1), 5), math.radians(-90), math.radians(0)),  # 11
    Part.LineSegment(V(20, 16.2, 0), V(-20, 16.2, 0)),  # 12
    Part.ArcOfCircle(Part.Circle(V(-20, 21.2, 0), V(0, 0, 1), 5), math.radians(180), math.radians(270)),  # 13
    Part.LineSegment(V(-25, 21.2, 0), V(-25, 58.6, 0)),  # 14
    Part.ArcOfCircle(Part.Circle(V(-20, 58.6, 0), V(0, 0, 1), 5), math.radians(53), math.radians(180)),  # 15
], False)
sketch12.addConstraint([
    Sketcher.Constraint("Tangent", 0, 2, 1, 2),
    Sketcher.Constraint("Tangent", 1, 1, 2, 1),
    Sketcher.Constraint("Tangent", 2, 2, 3, 2),
    Sketcher.Constraint("Tangent", 3, 1, 4, 1),
    Sketcher.Constraint("Tangent", 4, 2, 5, 2),
    Sketcher.Constraint("Tangent", 5, 1, 6, 1),
    Sketcher.Constraint("Tangent", 6, 2, 7, 2),
    Sketcher.Constraint("Tangent", 7, 1, 0, 1),
    Sketcher.Constraint("Tangent", 8, 2, 9, 2),
    Sketcher.Constraint("Tangent", 9, 1, 10, 1),
    Sketcher.Constraint("Tangent", 10, 2, 11, 2),
    Sketcher.Constraint("Tangent", 11, 1, 12, 1),
    Sketcher.Constraint("Tangent", 12, 2, 13, 2),
    Sketcher.Constraint("Tangent", 13, 1, 14, 1),
    Sketcher.Constraint("Tangent", 14, 2, 15, 2),
    Sketcher.Constraint("Tangent", 15, 1, 8, 1),
    Sketcher.Constraint("Horizontal", 0),
    Sketcher.Constraint("Vertical", 2),
    Sketcher.Constraint("Vertical", 6),
    Sketcher.Constraint("Vertical", 10),
    Sketcher.Constraint("Horizontal", 12),
    Sketcher.Constraint("Vertical", 14),
    Sketcher.Constraint("Equal", 1, 3),
    Sketcher.Constraint("Equal", 3, 5),
    Sketcher.Constraint("Equal", 5, 7),
    Sketcher.Constraint("Equal", 7, 9),
    Sketcher.Constraint("Equal", 9, 11),
    Sketcher.Constraint("Equal", 11, 13),
    Sketcher.Constraint("Equal", 13, 15),
    Sketcher.Constraint("Parallel", 4, 8),
    Sketcher.Constraint("Vertical", 3, 3, 9, 3),
    Sketcher.Constraint("Vertical", 7, 3, 13, 3),
    Sketcher.Constraint("Equal", 6, 10),
    Sketcher.Constraint("Radius", 1, Q("5 mm")),
    Sketcher.Constraint("DistanceX", 0, 1, 0, 2, Q("40 mm")),
    Sketcher.Constraint("DistanceX", -1, 1, 1, 3, Q("20 mm")),
    Sketcher.Constraint("DistanceY", 2, 2, 2, 1, Q("37.428802 mm")),
    Sketcher.Constraint("DistanceY", 6, 1, 6, 2, Q("7.496606 mm")),
    Sketcher.Constraint("DistanceY", -1, 1, 1, 3, Q("86.067219 mm")),
    Sketcher.Constraint("DistanceY", -1, 1, 9, 3, Q("28.654678 mm")),
])
sketch12.setExpression("Constraints[33]", "Params.sketch12_radius")
sketch12.setExpression("Constraints[34]", "Params.sketch12_width")
pocket5 = doc.addObject("PartDesign::Pocket", "Pocket004")
body.addObject(pocket5)
pocket5.Profile = sketch12
pocket5.setExpression("Length", "Params.pocket5_length")
pocket5.Reversed = True
doc.recompute()

mirrored3 = doc.addObject("PartDesign::Mirrored", "Mirrored002")
body.addObject(mirrored3)
mirrored3.Originals = [pocket5]
mirrored3.MirrorPlane = (doc.XY_Plane, [""])
body.Tip = mirrored3

# Sketch on XY plane
sketch13 = doc.addObject("Sketcher::SketchObject", "Sketch012")
body.addObject(sketch13)
sketch13.AttachmentSupport = (doc.XY_Plane, [""])
sketch13.MapMode = "FlatFace"
sketch13.AttachmentOffset = App.Placement(V(0, 0, -22), App.Rotation())
add_polygon(sketch13, [(-39, 118), (-39, 97), (-44, 97), (-44, 118)])  # lines 0-3
add_polygon(sketch13, [(52, 118), (52, 108), (47, 108), (47, 118)])  # lines 4-7
sketch13.addConstraint([
    Sketcher.Constraint("Vertical", 0),
    Sketcher.Constraint("Horizontal", 1),
    Sketcher.Constraint("Vertical", 2),
    Sketcher.Constraint("Horizontal", 3),
    Sketcher.Constraint("Vertical", 4),
    Sketcher.Constraint("Horizontal", 5),
    Sketcher.Constraint("Vertical", 6),
    Sketcher.Constraint("Horizontal", 7),
    Sketcher.Constraint("Horizontal", 3, 2, 6, 2),
    Sketcher.Constraint("Equal", 3, 5),
    Sketcher.Constraint("DistanceX", 1, 2, 1, 1, Q("5 mm")),
    Sketcher.Constraint("DistanceY", 0, 2, 0, 1, Q("20.5 mm")),
    Sketcher.Constraint("DistanceY", 4, 2, 4, 1, Q("9.5 mm")),
    Sketcher.Constraint("DistanceX", 0, 2, -1, 1, Q("39 mm")),
    Sketcher.Constraint("DistanceY", -1, 1, 0, 2, Q("97 mm")),
    Sketcher.Constraint("DistanceX", -1, 1, 4, 2, Q("52 mm")),
])
sketch13.setExpression("Constraints[18]", "Params.sketch13_width")
sketch13.setExpression("Constraints[19]", "Params.sketch13_height")
sketch13.setExpression("Constraints[20]", "Params.sketch13_height2")
pocket6 = doc.addObject("PartDesign::Pocket", "Pocket005")
body.addObject(pocket6)
pocket6.Profile = sketch13
pocket6.Type = "ThroughAll"
pocket6.Reversed = True

doc.recompute()
